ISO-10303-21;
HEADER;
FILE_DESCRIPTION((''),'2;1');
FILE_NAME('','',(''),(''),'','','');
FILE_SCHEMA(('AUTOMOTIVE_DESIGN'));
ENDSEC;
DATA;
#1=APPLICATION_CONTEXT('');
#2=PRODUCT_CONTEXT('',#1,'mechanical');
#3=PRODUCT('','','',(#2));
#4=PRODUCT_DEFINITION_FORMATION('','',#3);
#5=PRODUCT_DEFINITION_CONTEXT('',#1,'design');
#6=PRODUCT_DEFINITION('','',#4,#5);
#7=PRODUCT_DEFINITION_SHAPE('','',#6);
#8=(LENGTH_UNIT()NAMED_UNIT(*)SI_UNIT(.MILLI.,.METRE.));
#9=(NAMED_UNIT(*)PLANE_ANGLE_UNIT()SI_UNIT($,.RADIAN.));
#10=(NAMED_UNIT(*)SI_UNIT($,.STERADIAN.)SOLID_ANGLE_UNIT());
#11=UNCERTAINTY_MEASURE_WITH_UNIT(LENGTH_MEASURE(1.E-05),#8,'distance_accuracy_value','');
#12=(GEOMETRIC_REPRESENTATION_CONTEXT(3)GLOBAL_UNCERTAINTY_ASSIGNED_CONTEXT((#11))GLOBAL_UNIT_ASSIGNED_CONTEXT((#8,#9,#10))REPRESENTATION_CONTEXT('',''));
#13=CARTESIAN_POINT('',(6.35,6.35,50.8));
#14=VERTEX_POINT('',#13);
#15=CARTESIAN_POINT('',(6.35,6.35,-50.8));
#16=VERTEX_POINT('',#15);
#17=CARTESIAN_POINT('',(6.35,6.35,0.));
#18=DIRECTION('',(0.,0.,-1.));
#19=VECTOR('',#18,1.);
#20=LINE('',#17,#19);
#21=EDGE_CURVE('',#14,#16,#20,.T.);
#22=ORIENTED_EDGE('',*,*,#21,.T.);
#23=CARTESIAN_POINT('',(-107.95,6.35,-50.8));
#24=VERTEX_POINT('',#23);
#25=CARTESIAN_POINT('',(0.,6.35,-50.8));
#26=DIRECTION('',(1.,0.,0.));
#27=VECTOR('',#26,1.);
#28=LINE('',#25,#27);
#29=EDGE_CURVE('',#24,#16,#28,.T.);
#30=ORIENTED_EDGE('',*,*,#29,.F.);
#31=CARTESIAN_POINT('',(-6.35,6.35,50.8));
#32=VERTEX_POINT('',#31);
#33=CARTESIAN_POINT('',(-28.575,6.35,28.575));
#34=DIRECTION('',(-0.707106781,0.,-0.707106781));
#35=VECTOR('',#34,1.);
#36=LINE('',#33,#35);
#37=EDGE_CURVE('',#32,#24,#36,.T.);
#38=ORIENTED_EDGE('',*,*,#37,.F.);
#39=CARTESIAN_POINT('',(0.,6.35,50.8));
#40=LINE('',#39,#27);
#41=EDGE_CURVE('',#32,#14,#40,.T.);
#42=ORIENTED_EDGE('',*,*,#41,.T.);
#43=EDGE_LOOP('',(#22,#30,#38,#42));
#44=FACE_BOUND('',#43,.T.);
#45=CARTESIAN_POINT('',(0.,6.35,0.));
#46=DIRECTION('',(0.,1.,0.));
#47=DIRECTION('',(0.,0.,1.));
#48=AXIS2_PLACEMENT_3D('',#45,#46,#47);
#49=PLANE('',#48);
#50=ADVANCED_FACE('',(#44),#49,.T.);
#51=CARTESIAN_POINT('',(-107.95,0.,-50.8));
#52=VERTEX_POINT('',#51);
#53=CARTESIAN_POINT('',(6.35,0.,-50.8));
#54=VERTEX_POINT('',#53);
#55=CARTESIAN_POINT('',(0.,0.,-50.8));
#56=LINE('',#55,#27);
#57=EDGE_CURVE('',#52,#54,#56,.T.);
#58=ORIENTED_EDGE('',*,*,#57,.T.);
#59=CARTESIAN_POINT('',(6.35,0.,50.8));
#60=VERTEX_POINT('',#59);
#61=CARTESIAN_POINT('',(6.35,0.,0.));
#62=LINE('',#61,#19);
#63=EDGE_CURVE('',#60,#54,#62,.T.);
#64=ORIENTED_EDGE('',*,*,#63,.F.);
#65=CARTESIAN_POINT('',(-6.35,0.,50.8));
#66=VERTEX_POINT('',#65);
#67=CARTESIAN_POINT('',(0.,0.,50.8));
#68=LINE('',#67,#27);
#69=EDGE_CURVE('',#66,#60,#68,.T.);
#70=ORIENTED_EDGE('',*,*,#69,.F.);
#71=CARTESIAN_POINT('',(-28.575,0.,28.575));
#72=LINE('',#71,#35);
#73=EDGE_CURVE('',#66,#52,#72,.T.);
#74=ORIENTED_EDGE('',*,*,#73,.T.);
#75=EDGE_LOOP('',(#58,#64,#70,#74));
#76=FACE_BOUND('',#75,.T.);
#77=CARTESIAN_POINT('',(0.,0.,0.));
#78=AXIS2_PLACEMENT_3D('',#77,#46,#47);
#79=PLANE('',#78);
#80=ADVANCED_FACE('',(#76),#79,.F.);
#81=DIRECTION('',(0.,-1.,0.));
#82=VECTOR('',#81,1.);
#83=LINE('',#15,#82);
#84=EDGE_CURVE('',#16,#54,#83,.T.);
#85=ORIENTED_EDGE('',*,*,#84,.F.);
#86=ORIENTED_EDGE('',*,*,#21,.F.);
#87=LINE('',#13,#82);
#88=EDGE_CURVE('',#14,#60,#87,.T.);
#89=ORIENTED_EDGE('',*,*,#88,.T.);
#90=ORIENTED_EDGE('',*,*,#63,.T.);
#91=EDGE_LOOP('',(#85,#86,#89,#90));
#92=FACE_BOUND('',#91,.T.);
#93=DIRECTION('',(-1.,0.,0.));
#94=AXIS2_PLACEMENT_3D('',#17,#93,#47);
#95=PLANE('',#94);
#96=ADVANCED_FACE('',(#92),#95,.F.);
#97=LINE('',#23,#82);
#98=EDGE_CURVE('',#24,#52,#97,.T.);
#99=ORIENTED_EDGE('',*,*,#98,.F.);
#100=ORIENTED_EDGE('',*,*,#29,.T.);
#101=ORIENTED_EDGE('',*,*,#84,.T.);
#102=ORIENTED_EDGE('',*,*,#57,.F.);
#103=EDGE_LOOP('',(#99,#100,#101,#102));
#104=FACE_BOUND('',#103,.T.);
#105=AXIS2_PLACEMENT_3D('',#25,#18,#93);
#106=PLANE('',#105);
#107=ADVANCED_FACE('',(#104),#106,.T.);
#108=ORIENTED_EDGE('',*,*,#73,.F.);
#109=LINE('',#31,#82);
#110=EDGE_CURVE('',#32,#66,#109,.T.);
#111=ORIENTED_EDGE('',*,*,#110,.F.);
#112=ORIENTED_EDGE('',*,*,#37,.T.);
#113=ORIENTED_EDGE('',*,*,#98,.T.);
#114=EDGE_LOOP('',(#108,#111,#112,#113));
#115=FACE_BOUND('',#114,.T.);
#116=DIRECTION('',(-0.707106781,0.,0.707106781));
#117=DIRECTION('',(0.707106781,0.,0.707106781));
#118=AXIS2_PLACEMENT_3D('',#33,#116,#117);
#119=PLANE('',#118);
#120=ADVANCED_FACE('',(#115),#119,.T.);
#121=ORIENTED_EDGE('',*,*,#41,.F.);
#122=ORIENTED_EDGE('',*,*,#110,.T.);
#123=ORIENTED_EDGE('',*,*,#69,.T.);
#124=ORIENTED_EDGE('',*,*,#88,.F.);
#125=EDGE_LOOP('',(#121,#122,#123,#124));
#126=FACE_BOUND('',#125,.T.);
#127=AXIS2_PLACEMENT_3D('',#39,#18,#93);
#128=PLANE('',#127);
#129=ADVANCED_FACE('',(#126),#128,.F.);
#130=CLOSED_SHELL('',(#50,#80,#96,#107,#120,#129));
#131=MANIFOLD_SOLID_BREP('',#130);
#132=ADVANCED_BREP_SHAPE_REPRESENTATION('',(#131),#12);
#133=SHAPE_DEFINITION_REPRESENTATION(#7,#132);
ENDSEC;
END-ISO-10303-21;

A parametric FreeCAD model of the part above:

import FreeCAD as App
import Part
import Sketcher
Q = App.Units.Quantity

doc = App.newDocument("Part")
params = doc.addObject("Spreadsheet::Sheet", "Params")
for row, (alias, value) in enumerate([
    ("sketch1_height", "4 in"),
    ("sketch1_width", "4.5 in"),
    ("sketch1_width2", "0.5 in"),
    ("pad1_length", "0.25 in"),
], start=1):
    params.set(f"A{row}", alias)
    params.set(f"B{row}", "=" + value)
    params.setAlias(f"B{row}", alias)

body = doc.addObject("PartDesign::Body", "Body")

sketch1 = body.newObject("Sketcher::SketchObject", "Sketch")
sketch1.AttachmentSupport = (doc.getObject("XZ_Plane"), [""])
sketch1.MapMode = "FlatFace"
sketch1.addGeometry(Part.LineSegment(App.Vector(6.35, -50.8, 0), App.Vector(-107.95, -50.8, 0)), False)
sketch1.addGeometry(Part.LineSegment(App.Vector(-107.95, -50.8, 0), App.Vector(-6.35, 50.8, 0)), False)
sketch1.addGeometry(Part.LineSegment(App.Vector(-6.35, 50.8, 0), App.Vector(6.35, 50.8, 0)), False)
sketch1.addGeometry(Part.LineSegment(App.Vector(6.35, 50.8, 0), App.Vector(6.35, -50.8, 0)), False)
sketch1.addConstraint(Sketcher.Constraint("Coincident", 0, 2, 1, 1))
sketch1.addConstraint(Sketcher.Constraint("Coincident", 1, 2, 2, 1))
sketch1.addConstraint(Sketcher.Constraint("Coincident", 2, 2, 3, 1))
sketch1.addConstraint(Sketcher.Constraint("Coincident", 3, 2, 0, 1))
sketch1.addConstraint(Sketcher.Constraint("Horizontal", 0))
sketch1.addConstraint(Sketcher.Constraint("Horizontal", 2))
sketch1.addConstraint(Sketcher.Constraint("Vertical", 3))
sketch1.addConstraint(Sketcher.Constraint("Symmetric", 1, 2, 3, 2, -1, 1))
sketch1.addConstraint(Sketcher.Constraint("DistanceY", 3, 2, 3, 1, Q("4 in")))
sketch1.addConstraint(Sketcher.Constraint("DistanceX", 0, 2, 0, 1, Q("4.5 in")))
sketch1.addConstraint(Sketcher.Constraint("DistanceX", 2, 1, 2, 2, Q("0.5 in")))
sketch1.setExpression("Constraints[8]", "Params.sketch1_height")
sketch1.setExpression("Constraints[9]", "Params.sketch1_width")
sketch1.setExpression("Constraints[10]", "Params.sketch1_width2")
pad1 = body.newObject("PartDesign::Pad", "Pad")
pad1.Profile = sketch1
pad1.setExpression("Length", "Params.pad1_length")
pad1.Reversed = True

doc.recompute()
